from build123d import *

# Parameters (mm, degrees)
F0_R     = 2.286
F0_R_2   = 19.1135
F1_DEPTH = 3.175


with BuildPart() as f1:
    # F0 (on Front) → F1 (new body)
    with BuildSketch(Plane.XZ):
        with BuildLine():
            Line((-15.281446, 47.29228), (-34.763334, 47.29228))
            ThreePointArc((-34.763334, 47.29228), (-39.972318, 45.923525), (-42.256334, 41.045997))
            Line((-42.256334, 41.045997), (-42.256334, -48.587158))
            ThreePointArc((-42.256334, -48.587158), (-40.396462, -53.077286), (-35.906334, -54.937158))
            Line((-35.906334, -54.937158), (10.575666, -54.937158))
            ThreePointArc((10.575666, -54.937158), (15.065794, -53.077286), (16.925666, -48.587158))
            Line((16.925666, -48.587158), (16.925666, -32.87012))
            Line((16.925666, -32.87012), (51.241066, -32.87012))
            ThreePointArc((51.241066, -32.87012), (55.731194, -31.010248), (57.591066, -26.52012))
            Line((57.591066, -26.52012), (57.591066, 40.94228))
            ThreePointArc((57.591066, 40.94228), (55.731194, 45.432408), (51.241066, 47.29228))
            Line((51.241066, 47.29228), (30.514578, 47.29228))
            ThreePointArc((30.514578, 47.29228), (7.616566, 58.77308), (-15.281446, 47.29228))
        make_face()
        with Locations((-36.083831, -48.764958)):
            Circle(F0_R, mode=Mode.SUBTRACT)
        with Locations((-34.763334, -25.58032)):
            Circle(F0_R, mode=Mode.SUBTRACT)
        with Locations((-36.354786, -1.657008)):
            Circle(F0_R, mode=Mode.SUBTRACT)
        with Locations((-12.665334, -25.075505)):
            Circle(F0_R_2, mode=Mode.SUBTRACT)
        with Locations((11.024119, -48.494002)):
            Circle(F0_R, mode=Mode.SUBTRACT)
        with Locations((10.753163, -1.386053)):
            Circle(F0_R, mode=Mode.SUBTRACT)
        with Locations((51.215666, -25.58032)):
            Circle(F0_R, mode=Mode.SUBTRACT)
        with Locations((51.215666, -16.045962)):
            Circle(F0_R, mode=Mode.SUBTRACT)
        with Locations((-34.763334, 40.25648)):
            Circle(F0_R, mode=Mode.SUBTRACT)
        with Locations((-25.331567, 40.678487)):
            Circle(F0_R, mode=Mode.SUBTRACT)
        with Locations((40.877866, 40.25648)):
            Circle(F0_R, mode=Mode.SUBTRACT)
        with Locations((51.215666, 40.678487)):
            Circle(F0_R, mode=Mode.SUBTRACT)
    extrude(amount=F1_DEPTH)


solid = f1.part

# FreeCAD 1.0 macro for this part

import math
import FreeCAD as App
import Part
import Sketcher

V = App.Vector
Q = App.Units.Quantity

doc = App.newDocument("Part")
body = doc.addObject("PartDesign::Body", "Body")

# Sketch on XZ plane
sketch1 = body.newObject("Sketcher::SketchObject", "Sketch")
sketch1.AttachmentSupport = (doc.getObject("XZ_Plane"), [""])
sketch1.MapMode = "FlatFace"
sketch1.addGeometry([
    Part.LineSegment(V(-15.281446, 47.29228, 0), V(-34.763334, 47.29228, 0)),  # 0
    Part.ArcOfCircle(Part.Circle(V(-35.906335, 41.045998, 0), V(0, 0, 1), 6.349999), math.radians(79.630233), math.radians(180.000008)),  # 1
    Part.LineSegment(V(-42.256334, 41.045997, 0), V(-42.256334, -48.587158, 0)),  # 2
    Part.ArcOfCircle(Part.Circle(V(-35.906334, -48.587158, 0), V(0, 0, 1), 6.35), math.radians(-179.999998), math.radians(-90.000002)),  # 3
    Part.LineSegment(V(-35.906334, -54.937158, 0), V(10.575666, -54.937158, 0)),  # 4
    Part.ArcOfCircle(Part.Circle(V(10.575666, -48.587158, 0), V(0, 0, 1), 6.35), math.radians(-89.999998), math.radians(-0.000002)),  # 5
    Part.LineSegment(V(16.925666, -48.587158, 0), V(16.925666, -32.87012, 0)),  # 6
    Part.LineSegment(V(16.925666, -32.87012, 0), V(51.241066, -32.87012, 0)),  # 7
    Part.ArcOfCircle(Part.Circle(V(51.241066, -26.52012, 0), V(0, 0, 1), 6.35), math.radians(-89.999998), math.radians(-0.000002)),  # 8
    Part.LineSegment(V(57.591066, -26.52012, 0), V(57.591066, 40.94228, 0)),  # 9
    Part.ArcOfCircle(Part.Circle(V(51.241066, 40.94228, 0), V(0, 0, 1), 6.35), math.radians(0.000002), math.radians(89.999998)),  # 10
    Part.LineSegment(V(51.241066, 47.29228, 0), V(30.514578, 47.29228, 0)),  # 11
    Part.ArcOfCircle(Part.Circle(V(7.616566, 30.19808, 0), V(0, 0, 1), 28.575), math.radians(36.74268), math.radians(143.25732)),  # 12
    Part.Circle(V(-36.083831, -48.764958, 0), V(0, 0, 1), 2.286),  # 13
    Part.Circle(V(-34.763334, -25.58032, 0), V(0, 0, 1), 2.286),  # 14
    Part.Circle(V(-12.665334, -25.075505, 0), V(0, 0, 1), 19.1135),  # 15
    Part.Circle(V(11.024119, -48.494002, 0), V(0, 0, 1), 2.286),  # 16
    Part.Circle(V(51.215666, -25.58032, 0), V(0, 0, 1), 2.286),  # 17
    Part.Circle(V(51.215666, -16.045962, 0), V(0, 0, 1), 2.286),  # 18
    Part.Circle(V(-36.354786, -1.657008, 0), V(0, 0, 1), 2.286),  # 19
    Part.Circle(V(-34.763334, 40.25648, 0), V(0, 0, 1), 2.286),  # 20
    Part.Circle(V(-25.331567, 40.678487, 0), V(0, 0, 1), 2.286),  # 21
    Part.Circle(V(10.753163, -1.386053, 0), V(0, 0, 1), 2.286),  # 22
    Part.Circle(V(40.877866, 40.25648, 0), V(0, 0, 1), 2.286),  # 23
    Part.Circle(V(51.215666, 40.678487, 0), V(0, 0, 1), 2.286),  # 24
], False)
sketch1.addConstraint([
    Sketcher.Constraint("Coincident", 0, 2, 1, 1),
    Sketcher.Constraint("Tangent", 1, 2, 2, 1),
    Sketcher.Constraint("Tangent", 2, 2, 3, 1),
    Sketcher.Constraint("Tangent", 3, 2, 4, 1),
    Sketcher.Constraint("Tangent", 4, 2, 5, 1),
    Sketcher.Constraint("Tangent", 5, 2, 6, 1),
    Sketcher.Constraint("Coincident", 6, 2, 7, 1),
    Sketcher.Constraint("Tangent", 7, 2, 8, 1),
    Sketcher.Constraint("Tangent", 8, 2, 9, 1),
    Sketcher.Constraint("Tangent", 9, 2, 10, 1),
    Sketcher.Constraint("Tangent", 10, 2, 11, 1),
    Sketcher.Constraint("Coincident", 11, 2, 12, 1),
    Sketcher.Constraint("Coincident", 12, 2, 0, 1),
    Sketcher.Constraint("Horizontal", 0),
    Sketcher.Constraint("Vertical", 2),
    Sketcher.Constraint("Horizontal", 4),
    Sketcher.Constraint("Vertical", 6),
    Sketcher.Constraint("Horizontal", 7),
    Sketcher.Constraint("Vertical", 9),
    Sketcher.Constraint("Horizontal", 11),
    Sketcher.Constraint("Equal", 1, 3),
    Sketcher.Constraint("Equal", 3, 5),
    Sketcher.Constraint("Equal", 5, 8),
    Sketcher.Constraint("Equal", 8, 10),
    Sketcher.Constraint("Equal", 13, 14),
    Sketcher.Constraint("Equal", 14, 16),
    Sketcher.Constraint("Equal", 16, 17),
    Sketcher.Constraint("Equal", 17, 18),
    Sketcher.Constraint("Equal", 18, 19),
    Sketcher.Constraint("Equal", 19, 20),
    Sketcher.Constraint("Equal", 20, 21),
    Sketcher.Constraint("Equal", 21, 22),
    Sketcher.Constraint("Equal", 22, 23),
    Sketcher.Constraint("Equal", 23, 24),
    Sketcher.Constraint("Horizontal", 14, 3, 17, 3),
    Sketcher.Constraint("Horizontal", 20, 3, 23, 3),
    Sketcher.Constraint("Horizontal", 21, 3, 24, 3),
    Sketcher.Constraint("Horizontal", 0, 2, 10, 2),
    Sketcher.Constraint("Vertical", 17, 3, 18, 3),
    Sketcher.Constraint("Vertical", 14, 3, 20, 3),
    Sketcher.Constraint("Vertical", 18, 3, 24, 3),
    Sketcher.Constraint("Vertical", 20, 3, 0, 2),
    Sketcher.Constraint("Diameter", 13, Q("0.18 in")),
    Sketcher.Constraint("Radius", 1, Q("0.25 in")),
    Sketcher.Constraint("Diameter", 15, Q("1.505 in")),
    Sketcher.Constraint("Radius", 12, Q("1.125 in")),
    Sketcher.Constraint("DistanceX", 4, 1, 4, 2, Q("1.83 in")),
    Sketcher.Constraint("DistanceX", 5, 3, 17, 3, Q("1.6 in")),
    Sketcher.Constraint("DistanceX", 7, 1, 7, 2, Q("1.351 in")),
    Sketcher.Constraint("DistanceY", 9, 1, 9, 2, Q("2.656 in")),
    Sketcher.Constraint("DistanceX", 14, 3, 15, 3, Q("0.87 in")),
    Sketcher.Constraint("DistanceY", 12, 3, 10, 3, Q("0.423 in")),
    Sketcher.Constraint("DistanceY", 13, 3, 3, 3, Q("0.007 in")),
    Sketcher.Constraint("DistanceX", 3, 3, 14, 3, Q("0.045 in")),
    Sketcher.Constraint("DistanceY", 14, 3, 12, 3, Q("2.196 in")),
    Sketcher.Constraint("DistanceY", 12, 3, 20, 3, Q("0.396 in")),
    Sketcher.Constraint("DistanceX", 23, 3, 10, 3, Q("0.408 in")),
    Sketcher.Constraint("DistanceX", 1, 3, 12, 3, Q("1.7135 in")),
    Sketcher.Constraint("DistanceY", 6, 1, 6, 2, 15.717038),
    Sketcher.Constraint("DistanceY", 8, 3, -1, 1, 26.52012),
    Sketcher.Constraint("DistanceX", 13, 3, -1, 1, 36.083831),
    Sketcher.Constraint("DistanceX", -1, 1, 16, 3, 11.024119),
    Sketcher.Constraint("DistanceY", 18, 3, -1, 1, 16.045962),
    Sketcher.Constraint("DistanceX", -1, 1, 11, 2, 30.514578),
    Sketcher.Constraint("DistanceY", 16, 3, 18, 3, 32.44804),
    Sketcher.Constraint("DistanceX", 19, 3, 14, 3, 1.591452),
    Sketcher.Constraint("DistanceY", 14, 3, 19, 3, 23.923312),
    Sketcher.Constraint("DistanceY", 21, 3, 1, 3, 0.367511),
    Sketcher.Constraint("DistanceX", 19, 3, 21, 3, 11.023219),
    Sketcher.Constraint("DistanceY", 15, 3, 22, 3, 23.689452),
    Sketcher.Constraint("DistanceY", 18, 3, 22, 3, 14.659909),
    Sketcher.Constraint("DistanceX", 19, 3, 22, 3, 47.107949),
])
pad1 = body.newObject("PartDesign::Pad", "Pad")
pad1.Profile = sketch1
pad1.Length = Q("0.125 in")

doc.recompute()
